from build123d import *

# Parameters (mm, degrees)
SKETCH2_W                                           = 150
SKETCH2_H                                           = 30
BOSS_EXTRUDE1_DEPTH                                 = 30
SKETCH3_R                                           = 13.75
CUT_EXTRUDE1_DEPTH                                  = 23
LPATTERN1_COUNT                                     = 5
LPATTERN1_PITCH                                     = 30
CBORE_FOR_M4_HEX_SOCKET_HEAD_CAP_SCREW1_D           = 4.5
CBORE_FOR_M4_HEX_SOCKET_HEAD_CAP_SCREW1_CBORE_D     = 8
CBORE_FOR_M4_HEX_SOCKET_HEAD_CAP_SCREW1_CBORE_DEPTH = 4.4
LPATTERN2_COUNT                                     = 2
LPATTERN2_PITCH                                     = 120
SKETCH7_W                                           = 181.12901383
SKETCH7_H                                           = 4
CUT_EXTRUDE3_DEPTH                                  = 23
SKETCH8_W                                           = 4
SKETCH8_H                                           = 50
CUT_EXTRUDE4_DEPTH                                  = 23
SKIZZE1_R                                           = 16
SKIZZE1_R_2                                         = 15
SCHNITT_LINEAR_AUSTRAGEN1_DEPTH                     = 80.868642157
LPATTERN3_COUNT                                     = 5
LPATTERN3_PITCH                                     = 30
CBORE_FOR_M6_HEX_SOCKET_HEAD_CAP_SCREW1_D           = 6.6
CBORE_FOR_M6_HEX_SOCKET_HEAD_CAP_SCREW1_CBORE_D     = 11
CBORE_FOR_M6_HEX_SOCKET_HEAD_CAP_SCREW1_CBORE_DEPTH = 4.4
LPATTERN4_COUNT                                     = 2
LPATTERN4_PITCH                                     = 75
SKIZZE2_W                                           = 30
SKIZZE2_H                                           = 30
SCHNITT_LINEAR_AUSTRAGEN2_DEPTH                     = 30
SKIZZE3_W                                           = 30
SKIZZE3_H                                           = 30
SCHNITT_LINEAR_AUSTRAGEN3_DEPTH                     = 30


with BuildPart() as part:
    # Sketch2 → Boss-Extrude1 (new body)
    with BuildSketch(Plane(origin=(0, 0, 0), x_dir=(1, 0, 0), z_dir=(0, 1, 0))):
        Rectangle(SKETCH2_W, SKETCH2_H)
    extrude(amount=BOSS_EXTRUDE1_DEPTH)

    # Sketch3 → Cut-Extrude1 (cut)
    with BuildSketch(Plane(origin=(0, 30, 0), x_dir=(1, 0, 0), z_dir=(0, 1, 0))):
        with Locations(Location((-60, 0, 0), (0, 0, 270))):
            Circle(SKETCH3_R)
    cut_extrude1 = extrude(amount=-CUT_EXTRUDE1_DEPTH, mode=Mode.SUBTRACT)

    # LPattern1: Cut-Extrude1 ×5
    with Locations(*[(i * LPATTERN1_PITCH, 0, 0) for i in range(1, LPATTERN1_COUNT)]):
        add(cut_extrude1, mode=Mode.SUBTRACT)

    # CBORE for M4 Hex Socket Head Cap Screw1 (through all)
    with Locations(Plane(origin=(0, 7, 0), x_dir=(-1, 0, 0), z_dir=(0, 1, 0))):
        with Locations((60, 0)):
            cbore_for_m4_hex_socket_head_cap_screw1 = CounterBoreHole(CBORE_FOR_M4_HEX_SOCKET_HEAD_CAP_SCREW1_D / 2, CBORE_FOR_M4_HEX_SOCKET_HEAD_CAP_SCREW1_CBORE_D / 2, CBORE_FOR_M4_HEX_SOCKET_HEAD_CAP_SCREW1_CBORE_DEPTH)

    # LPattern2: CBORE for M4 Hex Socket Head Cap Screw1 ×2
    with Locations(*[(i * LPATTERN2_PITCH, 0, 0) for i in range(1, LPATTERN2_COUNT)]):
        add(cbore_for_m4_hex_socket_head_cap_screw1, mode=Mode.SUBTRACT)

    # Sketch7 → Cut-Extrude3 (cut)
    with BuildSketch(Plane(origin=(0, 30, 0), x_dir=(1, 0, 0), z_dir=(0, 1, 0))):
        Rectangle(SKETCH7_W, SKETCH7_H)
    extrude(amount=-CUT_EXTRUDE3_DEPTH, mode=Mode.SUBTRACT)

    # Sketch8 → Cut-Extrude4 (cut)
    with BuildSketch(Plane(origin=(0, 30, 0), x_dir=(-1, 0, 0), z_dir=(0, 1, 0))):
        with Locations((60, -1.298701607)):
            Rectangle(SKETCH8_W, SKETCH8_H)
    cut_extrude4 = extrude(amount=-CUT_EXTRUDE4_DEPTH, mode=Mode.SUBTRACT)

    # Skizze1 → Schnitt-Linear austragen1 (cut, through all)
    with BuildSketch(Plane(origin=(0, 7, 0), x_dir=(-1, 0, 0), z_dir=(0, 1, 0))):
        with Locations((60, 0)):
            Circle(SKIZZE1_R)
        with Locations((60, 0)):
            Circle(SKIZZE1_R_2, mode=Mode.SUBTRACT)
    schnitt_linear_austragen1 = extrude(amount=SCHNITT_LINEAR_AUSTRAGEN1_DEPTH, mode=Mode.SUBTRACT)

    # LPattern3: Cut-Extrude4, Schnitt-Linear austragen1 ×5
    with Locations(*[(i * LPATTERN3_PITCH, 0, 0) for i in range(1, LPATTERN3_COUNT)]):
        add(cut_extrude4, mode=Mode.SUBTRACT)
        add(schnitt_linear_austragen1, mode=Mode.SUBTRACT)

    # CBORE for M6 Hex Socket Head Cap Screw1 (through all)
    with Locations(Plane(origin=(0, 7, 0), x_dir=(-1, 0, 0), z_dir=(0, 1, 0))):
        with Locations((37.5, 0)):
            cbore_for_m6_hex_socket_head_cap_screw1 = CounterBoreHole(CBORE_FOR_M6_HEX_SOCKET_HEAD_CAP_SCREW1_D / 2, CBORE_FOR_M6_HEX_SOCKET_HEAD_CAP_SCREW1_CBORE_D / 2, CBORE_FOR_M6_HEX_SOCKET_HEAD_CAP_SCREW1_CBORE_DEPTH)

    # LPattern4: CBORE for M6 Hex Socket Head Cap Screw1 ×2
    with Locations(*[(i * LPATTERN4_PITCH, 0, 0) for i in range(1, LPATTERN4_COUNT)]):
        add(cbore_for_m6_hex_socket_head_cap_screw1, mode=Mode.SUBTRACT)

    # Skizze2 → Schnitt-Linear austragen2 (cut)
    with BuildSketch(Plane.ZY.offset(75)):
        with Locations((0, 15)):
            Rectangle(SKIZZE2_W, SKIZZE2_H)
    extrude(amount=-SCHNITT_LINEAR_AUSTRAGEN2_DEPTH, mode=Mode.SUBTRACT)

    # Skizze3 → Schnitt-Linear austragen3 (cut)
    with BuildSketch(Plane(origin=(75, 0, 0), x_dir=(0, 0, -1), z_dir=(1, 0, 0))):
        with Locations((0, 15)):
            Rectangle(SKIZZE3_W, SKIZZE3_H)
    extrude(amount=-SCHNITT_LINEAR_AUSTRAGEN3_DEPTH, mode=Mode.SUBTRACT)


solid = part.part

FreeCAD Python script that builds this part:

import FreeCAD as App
import Part
import Sketcher
Q = App.Units.Quantity


def add_polygon(sketch, points):
    """Adds a closed chain of lines whose ends are joined by coincident constraints."""
    first, n = sketch.GeometryCount, len(points)
    for a, b in zip(points, points[1:] + points[:1]):
        sketch.addGeometry(Part.LineSegment(App.Vector(*a, 0), App.Vector(*b, 0)), False)
    for i in range(n):
        sketch.addConstraint(Sketcher.Constraint("Coincident", first + i, 2, first + (i + 1) % n, 1))

doc = App.newDocument("Part")
body = doc.addObject("PartDesign::Body", "Body")

sketch1 = body.newObject("Sketcher::SketchObject", "Sketch")
sketch1.AttachmentSupport = (doc.getObject("XZ_Plane"), [""])
sketch1.MapMode = "FlatFace"
add_polygon(sketch1, [(-75, -15), (-75, 15), (75, 15), (75, -15)])
sketch1.addConstraint([
    Sketcher.Constraint("Vertical", 0),
    Sketcher.Constraint("Horizontal", 1),
    Sketcher.Constraint("Vertical", 2),
    Sketcher.Constraint("Horizontal", 3),
    Sketcher.Constraint("Symmetric", 0, 2, 2, 2, -1, 1),
    Sketcher.Constraint("DistanceX", 1, 1, 1, 2, Q("150 mm")),
    Sketcher.Constraint("DistanceY", 0, 1, 0, 2, Q("30 mm")),
])
pad1 = body.newObject("PartDesign::Pad", "Pad")
pad1.Profile = sketch1
pad1.Length = 30
pad1.Reversed = True

sketch2 = body.newObject("Sketcher::SketchObject", "Sketch001")
sketch2.AttachmentSupport = (doc.getObject("XZ_Plane"), [""])
sketch2.MapMode = "FlatFace"
sketch2.AttachmentOffset = App.Placement(App.Vector(0, 0, -30), App.Rotation())
sketch2.addGeometry(Part.Circle(App.Vector(-60, 0, 0), App.Vector(0, 0, 1), 14), False)
sketch2.addConstraint([
    Sketcher.Constraint("PointOnObject", 0, 3, -1),
    Sketcher.Constraint("Diameter", 0, Q("27.5 mm")),
    Sketcher.Constraint("DistanceX", 0, 3, -1, 1, Q("60 mm")),
])
pocket1 = body.newObject("PartDesign::Pocket", "Pocket")
pocket1.Profile = sketch2
pocket1.Length = 23
pocket1.Reversed = True
doc.recompute()

linearpattern = body.newObject("PartDesign::LinearPattern", "LinearPattern")
linearpattern.Originals = [pocket1]
linearpattern.Direction = (doc.getObject("X_Axis"), [""])
linearpattern.Mode = "offset"
linearpattern.Offset = 30
linearpattern.Occurrences = 5
body.Tip = linearpattern

sketch3 = body.newObject("Sketcher::SketchObject", "Sketch002")
sketch3.AttachmentSupport = (doc.getObject("XZ_Plane"), [""])
sketch3.MapMode = "FlatFace"
sketch3.AttachmentOffset = App.Placement(App.Vector(0, 0, -7), App.Rotation())
sketch3.addGeometry(Part.Circle(App.Vector(-60, 0, 0), App.Vector(0, 0, 1), 2.2), False)
sketch3.addConstraint([
    Sketcher.Constraint("PointOnObject", 0, 3, -1),
    Sketcher.Constraint("Diameter", 0, Q("4.5 mm")),
    Sketcher.Constraint("DistanceX", 0, 3, -1, 1, Q("60 mm")),
])
doc.recompute()
hole = body.newObject("PartDesign::Hole", "Hole")
hole.Profile = sketch3
hole.ThreadType = "None"
hole.Diameter = 4.5
hole.DepthType = "ThroughAll"
hole.HoleCutType = "Counterbore"
hole.HoleCutDiameter = 8
hole.HoleCutDepth = 4.4
hole.Reversed = True
doc.recompute()

linearpattern2 = body.newObject("PartDesign::LinearPattern", "LinearPattern001")
linearpattern2.Originals = [hole]
linearpattern2.Direction = (doc.getObject("X_Axis"), [""])
linearpattern2.Mode = "offset"
linearpattern2.Offset = 120
linearpattern2.Occurrences = 2
body.Tip = linearpattern2

sketch4 = body.newObject("Sketcher::SketchObject", "Sketch003")
sketch4.AttachmentSupport = (doc.getObject("XZ_Plane"), [""])
sketch4.MapMode = "FlatFace"
sketch4.AttachmentOffset = App.Placement(App.Vector(0, 0, -30), App.Rotation())
add_polygon(sketch4, [(-90.6, -2), (-90.6, 2), (90.6, 2), (90.6, -2)])
sketch4.addConstraint([
    Sketcher.Constraint("Vertical", 0),
    Sketcher.Constraint("Horizontal", 1),
    Sketcher.Constraint("Vertical", 2),
    Sketcher.Constraint("Horizontal", 3),
    Sketcher.Constraint("Symmetric", 0, 2, 2, 2, -1, 1),
    Sketcher.Constraint("DistanceY", 0, 1, 0, 2, Q("4 mm")),
    Sketcher.Constraint("DistanceX", 1, 1, 1, 2, Q("181.129014 mm")),
])
pocket2 = body.newObject("PartDesign::Pocket", "Pocket001")
pocket2.Profile = sketch4
pocket2.Length = 23
pocket2.Reversed = True

sketch5 = body.newObject("Sketcher::SketchObject", "Sketch004")
sketch5.AttachmentSupport = (doc.getObject("XZ_Plane"), [""])
sketch5.MapMode = "FlatFace"
sketch5.AttachmentOffset = App.Placement(App.Vector(0, 0, -30), App.Rotation())
add_polygon(sketch5, [(-58, 23.7), (-58, -26.3), (-62, -26.3), (-62, 23.7)])
sketch5.addConstraint([
    Sketcher.Constraint("Vertical", 0),
    Sketcher.Constraint("Horizontal", 1),
    Sketcher.Constraint("Vertical", 2),
    Sketcher.Constraint("Horizontal", 3),
    Sketcher.Constraint("DistanceX", 1, 2, 1, 1, Q("4 mm")),
    Sketcher.Constraint("DistanceY", 0, 2, 0, 1, Q("50 mm")),
    Sketcher.Constraint("DistanceX", 0, 2, -1, 1, Q("58 mm")),
    Sketcher.Constraint("DistanceY", 0, 2, -1, 1, Q("26.298702 mm")),
])
pocket3 = body.newObject("PartDesign::Pocket", "Pocket002")
pocket3.Profile = sketch5
pocket3.Length = 23
pocket3.Reversed = True

sketch6 = body.newObject("Sketcher::SketchObject", "Sketch005")
sketch6.AttachmentSupport = (doc.getObject("XZ_Plane"), [""])
sketch6.MapMode = "FlatFace"
sketch6.AttachmentOffset = App.Placement(App.Vector(0, 0, -7), App.Rotation())
sketch6.addGeometry([
    Part.Circle(App.Vector(-60, 0, 0), App.Vector(0, 0, 1), 16),
    Part.Circle(App.Vector(-60, 0, 0), App.Vector(0, 0, 1), 15),
], False)
sketch6.addConstraint([
    Sketcher.Constraint("Coincident", 1, 3, 0, 3),
    Sketcher.Constraint("PointOnObject", 0, 3, -1),
    Sketcher.Constraint("Diameter", 0, Q("32 mm")),
    Sketcher.Constraint("Diameter", 1, Q("30 mm")),
    Sketcher.Constraint("DistanceX", 0, 3, -1, 1, Q("60 mm")),
])
pocket4 = body.newObject("PartDesign::Pocket", "Pocket003")
pocket4.Profile = sketch6
pocket4.Type = "ThroughAll"
doc.recompute()

linearpattern3 = body.newObject("PartDesign::LinearPattern", "LinearPattern002")
linearpattern3.Originals = [pocket3, pocket4]
linearpattern3.Direction = (doc.getObject("X_Axis"), [""])
linearpattern3.Mode = "offset"
linearpattern3.Offset = 30
linearpattern3.Occurrences = 5
body.Tip = linearpattern3

sketch7 = body.newObject("Sketcher::SketchObject", "Sketch006")
sketch7.AttachmentSupport = (doc.getObject("XZ_Plane"), [""])
sketch7.MapMode = "FlatFace"
sketch7.AttachmentOffset = App.Placement(App.Vector(0, 0, -7), App.Rotation())
sketch7.addGeometry(Part.Circle(App.Vector(-37.5, 0, 0), App.Vector(0, 0, 1), 3.3), False)
sketch7.addConstraint([
    Sketcher.Constraint("PointOnObject", 0, 3, -1),
    Sketcher.Constraint("Diameter", 0, Q("6.6 mm")),
    Sketcher.Constraint("DistanceX", 0, 3, -1, 1, Q("37.5 mm")),
])
doc.recompute()
hole2 = body.newObject("PartDesign::Hole", "Hole001")
hole2.Profile = sketch7
hole2.ThreadType = "None"
hole2.Diameter = 6.6
hole2.DepthType = "ThroughAll"
hole2.HoleCutType = "Counterbore"
hole2.HoleCutDiameter = 11
hole2.HoleCutDepth = 4.4
hole2.Reversed = True
doc.recompute()

linearpattern4 = body.newObject("PartDesign::LinearPattern", "LinearPattern003")
linearpattern4.Originals = [hole2]
linearpattern4.Direction = (doc.getObject("X_Axis"), [""])
linearpattern4.Mode = "offset"
linearpattern4.Offset = 75
linearpattern4.Occurrences = 2
body.Tip = linearpattern4

sketch8 = body.newObject("Sketcher::SketchObject", "Sketch007")
sketch8.AttachmentSupport = (doc.getObject("YZ_Plane"), [""])
sketch8.MapMode = "FlatFace"
sketch8.AttachmentOffset = App.Placement(App.Vector(0, 0, -75), App.Rotation())
add_polygon(sketch8, [(30, -15), (0, -15), (0, 15), (30, 15)])
sketch8.addConstraint([
    Sketcher.Constraint("Horizontal", 0),
    Sketcher.Constraint("Vertical", 1),
    Sketcher.Constraint("Horizontal", 2),
    Sketcher.Constraint("Vertical", 3),
    Sketcher.Constraint("Symmetric", 0, 2, 1, 2, -1, 1),
    Sketcher.Constraint("Equal", 2, 1),
    Sketcher.Constraint("DistanceX", 0, 2, 0, 1, Q("30 mm")),
])
pocket5 = body.newObject("PartDesign::Pocket", "Pocket004")
pocket5.Profile = sketch8
pocket5.Length = 30
pocket5.Reversed = True

sketch9 = body.newObject("Sketcher::SketchObject", "Sketch008")
sketch9.AttachmentSupport = (doc.getObject("YZ_Plane"), [""])
sketch9.MapMode = "FlatFace"
sketch9.AttachmentOffset = App.Placement(App.Vector(0, 0, 75), App.Rotation())
add_polygon(sketch9, [(30, 15), (0, 15), (0, -15), (30, -15)])
sketch9.addConstraint([
    Sketcher.Constraint("Horizontal", 0),
    Sketcher.Constraint("Vertical", 1),
    Sketcher.Constraint("Horizontal", 2),
    Sketcher.Constraint("Vertical", 3),
    Sketcher.Constraint("Symmetric", 0, 2, 1, 2, -1, 1),
    Sketcher.Constraint("Equal", 2, 1),
    Sketcher.Constraint("DistanceX", 0, 2, 0, 1, Q("30 mm")),
])
pocket6 = body.newObject("PartDesign::Pocket", "Pocket005")
pocket6.Profile = sketch9
pocket6.Length = 30

doc.recompute()
